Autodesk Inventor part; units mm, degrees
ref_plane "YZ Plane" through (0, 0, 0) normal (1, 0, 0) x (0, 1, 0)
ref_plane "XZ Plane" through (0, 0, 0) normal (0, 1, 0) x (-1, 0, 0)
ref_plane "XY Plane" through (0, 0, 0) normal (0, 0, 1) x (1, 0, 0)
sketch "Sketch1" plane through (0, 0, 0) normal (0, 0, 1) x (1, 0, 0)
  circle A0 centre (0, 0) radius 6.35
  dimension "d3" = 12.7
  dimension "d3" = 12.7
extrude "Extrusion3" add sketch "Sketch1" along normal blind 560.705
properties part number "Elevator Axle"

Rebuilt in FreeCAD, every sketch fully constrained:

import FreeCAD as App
import Part
import Sketcher
Q = App.Units.Quantity

doc = App.newDocument("Part")
params = doc.addObject("Spreadsheet::Sheet", "Params")
for row, (alias, value) in enumerate([
    ("sketch1_diameter", "0.5 in"),
    ("pad1_length", "22.075 in"),
], start=1):
    params.set(f"A{row}", alias)
    params.set(f"B{row}", "=" + value)
    params.setAlias(f"B{row}", alias)

body = doc.addObject("PartDesign::Body", "Body")

# Sketch on XY plane
sketch1 = body.newObject("Sketcher::SketchObject", "Sketch")
sketch1.AttachmentSupport = (doc.getObject("XY_Plane"), [""])
sketch1.MapMode = "FlatFace"
sketch1.addGeometry(Part.Circle(App.Vector(0, 0, 0), App.Vector(0, 0, 1), 6), False)
sketch1.addConstraint(Sketcher.Constraint("Coincident", 0, 3, -1, 1))
sketch1.addConstraint(Sketcher.Constraint("Diameter", 0, Q("0.5 in")))
sketch1.setExpression("Constraints[1]", "Params.sketch1_diameter")
pad1 = body.newObject("PartDesign::Pad", "Pad")
pad1.Profile = sketch1
pad1.setExpression("Length", "Params.pad1_length")

doc.recompute()
